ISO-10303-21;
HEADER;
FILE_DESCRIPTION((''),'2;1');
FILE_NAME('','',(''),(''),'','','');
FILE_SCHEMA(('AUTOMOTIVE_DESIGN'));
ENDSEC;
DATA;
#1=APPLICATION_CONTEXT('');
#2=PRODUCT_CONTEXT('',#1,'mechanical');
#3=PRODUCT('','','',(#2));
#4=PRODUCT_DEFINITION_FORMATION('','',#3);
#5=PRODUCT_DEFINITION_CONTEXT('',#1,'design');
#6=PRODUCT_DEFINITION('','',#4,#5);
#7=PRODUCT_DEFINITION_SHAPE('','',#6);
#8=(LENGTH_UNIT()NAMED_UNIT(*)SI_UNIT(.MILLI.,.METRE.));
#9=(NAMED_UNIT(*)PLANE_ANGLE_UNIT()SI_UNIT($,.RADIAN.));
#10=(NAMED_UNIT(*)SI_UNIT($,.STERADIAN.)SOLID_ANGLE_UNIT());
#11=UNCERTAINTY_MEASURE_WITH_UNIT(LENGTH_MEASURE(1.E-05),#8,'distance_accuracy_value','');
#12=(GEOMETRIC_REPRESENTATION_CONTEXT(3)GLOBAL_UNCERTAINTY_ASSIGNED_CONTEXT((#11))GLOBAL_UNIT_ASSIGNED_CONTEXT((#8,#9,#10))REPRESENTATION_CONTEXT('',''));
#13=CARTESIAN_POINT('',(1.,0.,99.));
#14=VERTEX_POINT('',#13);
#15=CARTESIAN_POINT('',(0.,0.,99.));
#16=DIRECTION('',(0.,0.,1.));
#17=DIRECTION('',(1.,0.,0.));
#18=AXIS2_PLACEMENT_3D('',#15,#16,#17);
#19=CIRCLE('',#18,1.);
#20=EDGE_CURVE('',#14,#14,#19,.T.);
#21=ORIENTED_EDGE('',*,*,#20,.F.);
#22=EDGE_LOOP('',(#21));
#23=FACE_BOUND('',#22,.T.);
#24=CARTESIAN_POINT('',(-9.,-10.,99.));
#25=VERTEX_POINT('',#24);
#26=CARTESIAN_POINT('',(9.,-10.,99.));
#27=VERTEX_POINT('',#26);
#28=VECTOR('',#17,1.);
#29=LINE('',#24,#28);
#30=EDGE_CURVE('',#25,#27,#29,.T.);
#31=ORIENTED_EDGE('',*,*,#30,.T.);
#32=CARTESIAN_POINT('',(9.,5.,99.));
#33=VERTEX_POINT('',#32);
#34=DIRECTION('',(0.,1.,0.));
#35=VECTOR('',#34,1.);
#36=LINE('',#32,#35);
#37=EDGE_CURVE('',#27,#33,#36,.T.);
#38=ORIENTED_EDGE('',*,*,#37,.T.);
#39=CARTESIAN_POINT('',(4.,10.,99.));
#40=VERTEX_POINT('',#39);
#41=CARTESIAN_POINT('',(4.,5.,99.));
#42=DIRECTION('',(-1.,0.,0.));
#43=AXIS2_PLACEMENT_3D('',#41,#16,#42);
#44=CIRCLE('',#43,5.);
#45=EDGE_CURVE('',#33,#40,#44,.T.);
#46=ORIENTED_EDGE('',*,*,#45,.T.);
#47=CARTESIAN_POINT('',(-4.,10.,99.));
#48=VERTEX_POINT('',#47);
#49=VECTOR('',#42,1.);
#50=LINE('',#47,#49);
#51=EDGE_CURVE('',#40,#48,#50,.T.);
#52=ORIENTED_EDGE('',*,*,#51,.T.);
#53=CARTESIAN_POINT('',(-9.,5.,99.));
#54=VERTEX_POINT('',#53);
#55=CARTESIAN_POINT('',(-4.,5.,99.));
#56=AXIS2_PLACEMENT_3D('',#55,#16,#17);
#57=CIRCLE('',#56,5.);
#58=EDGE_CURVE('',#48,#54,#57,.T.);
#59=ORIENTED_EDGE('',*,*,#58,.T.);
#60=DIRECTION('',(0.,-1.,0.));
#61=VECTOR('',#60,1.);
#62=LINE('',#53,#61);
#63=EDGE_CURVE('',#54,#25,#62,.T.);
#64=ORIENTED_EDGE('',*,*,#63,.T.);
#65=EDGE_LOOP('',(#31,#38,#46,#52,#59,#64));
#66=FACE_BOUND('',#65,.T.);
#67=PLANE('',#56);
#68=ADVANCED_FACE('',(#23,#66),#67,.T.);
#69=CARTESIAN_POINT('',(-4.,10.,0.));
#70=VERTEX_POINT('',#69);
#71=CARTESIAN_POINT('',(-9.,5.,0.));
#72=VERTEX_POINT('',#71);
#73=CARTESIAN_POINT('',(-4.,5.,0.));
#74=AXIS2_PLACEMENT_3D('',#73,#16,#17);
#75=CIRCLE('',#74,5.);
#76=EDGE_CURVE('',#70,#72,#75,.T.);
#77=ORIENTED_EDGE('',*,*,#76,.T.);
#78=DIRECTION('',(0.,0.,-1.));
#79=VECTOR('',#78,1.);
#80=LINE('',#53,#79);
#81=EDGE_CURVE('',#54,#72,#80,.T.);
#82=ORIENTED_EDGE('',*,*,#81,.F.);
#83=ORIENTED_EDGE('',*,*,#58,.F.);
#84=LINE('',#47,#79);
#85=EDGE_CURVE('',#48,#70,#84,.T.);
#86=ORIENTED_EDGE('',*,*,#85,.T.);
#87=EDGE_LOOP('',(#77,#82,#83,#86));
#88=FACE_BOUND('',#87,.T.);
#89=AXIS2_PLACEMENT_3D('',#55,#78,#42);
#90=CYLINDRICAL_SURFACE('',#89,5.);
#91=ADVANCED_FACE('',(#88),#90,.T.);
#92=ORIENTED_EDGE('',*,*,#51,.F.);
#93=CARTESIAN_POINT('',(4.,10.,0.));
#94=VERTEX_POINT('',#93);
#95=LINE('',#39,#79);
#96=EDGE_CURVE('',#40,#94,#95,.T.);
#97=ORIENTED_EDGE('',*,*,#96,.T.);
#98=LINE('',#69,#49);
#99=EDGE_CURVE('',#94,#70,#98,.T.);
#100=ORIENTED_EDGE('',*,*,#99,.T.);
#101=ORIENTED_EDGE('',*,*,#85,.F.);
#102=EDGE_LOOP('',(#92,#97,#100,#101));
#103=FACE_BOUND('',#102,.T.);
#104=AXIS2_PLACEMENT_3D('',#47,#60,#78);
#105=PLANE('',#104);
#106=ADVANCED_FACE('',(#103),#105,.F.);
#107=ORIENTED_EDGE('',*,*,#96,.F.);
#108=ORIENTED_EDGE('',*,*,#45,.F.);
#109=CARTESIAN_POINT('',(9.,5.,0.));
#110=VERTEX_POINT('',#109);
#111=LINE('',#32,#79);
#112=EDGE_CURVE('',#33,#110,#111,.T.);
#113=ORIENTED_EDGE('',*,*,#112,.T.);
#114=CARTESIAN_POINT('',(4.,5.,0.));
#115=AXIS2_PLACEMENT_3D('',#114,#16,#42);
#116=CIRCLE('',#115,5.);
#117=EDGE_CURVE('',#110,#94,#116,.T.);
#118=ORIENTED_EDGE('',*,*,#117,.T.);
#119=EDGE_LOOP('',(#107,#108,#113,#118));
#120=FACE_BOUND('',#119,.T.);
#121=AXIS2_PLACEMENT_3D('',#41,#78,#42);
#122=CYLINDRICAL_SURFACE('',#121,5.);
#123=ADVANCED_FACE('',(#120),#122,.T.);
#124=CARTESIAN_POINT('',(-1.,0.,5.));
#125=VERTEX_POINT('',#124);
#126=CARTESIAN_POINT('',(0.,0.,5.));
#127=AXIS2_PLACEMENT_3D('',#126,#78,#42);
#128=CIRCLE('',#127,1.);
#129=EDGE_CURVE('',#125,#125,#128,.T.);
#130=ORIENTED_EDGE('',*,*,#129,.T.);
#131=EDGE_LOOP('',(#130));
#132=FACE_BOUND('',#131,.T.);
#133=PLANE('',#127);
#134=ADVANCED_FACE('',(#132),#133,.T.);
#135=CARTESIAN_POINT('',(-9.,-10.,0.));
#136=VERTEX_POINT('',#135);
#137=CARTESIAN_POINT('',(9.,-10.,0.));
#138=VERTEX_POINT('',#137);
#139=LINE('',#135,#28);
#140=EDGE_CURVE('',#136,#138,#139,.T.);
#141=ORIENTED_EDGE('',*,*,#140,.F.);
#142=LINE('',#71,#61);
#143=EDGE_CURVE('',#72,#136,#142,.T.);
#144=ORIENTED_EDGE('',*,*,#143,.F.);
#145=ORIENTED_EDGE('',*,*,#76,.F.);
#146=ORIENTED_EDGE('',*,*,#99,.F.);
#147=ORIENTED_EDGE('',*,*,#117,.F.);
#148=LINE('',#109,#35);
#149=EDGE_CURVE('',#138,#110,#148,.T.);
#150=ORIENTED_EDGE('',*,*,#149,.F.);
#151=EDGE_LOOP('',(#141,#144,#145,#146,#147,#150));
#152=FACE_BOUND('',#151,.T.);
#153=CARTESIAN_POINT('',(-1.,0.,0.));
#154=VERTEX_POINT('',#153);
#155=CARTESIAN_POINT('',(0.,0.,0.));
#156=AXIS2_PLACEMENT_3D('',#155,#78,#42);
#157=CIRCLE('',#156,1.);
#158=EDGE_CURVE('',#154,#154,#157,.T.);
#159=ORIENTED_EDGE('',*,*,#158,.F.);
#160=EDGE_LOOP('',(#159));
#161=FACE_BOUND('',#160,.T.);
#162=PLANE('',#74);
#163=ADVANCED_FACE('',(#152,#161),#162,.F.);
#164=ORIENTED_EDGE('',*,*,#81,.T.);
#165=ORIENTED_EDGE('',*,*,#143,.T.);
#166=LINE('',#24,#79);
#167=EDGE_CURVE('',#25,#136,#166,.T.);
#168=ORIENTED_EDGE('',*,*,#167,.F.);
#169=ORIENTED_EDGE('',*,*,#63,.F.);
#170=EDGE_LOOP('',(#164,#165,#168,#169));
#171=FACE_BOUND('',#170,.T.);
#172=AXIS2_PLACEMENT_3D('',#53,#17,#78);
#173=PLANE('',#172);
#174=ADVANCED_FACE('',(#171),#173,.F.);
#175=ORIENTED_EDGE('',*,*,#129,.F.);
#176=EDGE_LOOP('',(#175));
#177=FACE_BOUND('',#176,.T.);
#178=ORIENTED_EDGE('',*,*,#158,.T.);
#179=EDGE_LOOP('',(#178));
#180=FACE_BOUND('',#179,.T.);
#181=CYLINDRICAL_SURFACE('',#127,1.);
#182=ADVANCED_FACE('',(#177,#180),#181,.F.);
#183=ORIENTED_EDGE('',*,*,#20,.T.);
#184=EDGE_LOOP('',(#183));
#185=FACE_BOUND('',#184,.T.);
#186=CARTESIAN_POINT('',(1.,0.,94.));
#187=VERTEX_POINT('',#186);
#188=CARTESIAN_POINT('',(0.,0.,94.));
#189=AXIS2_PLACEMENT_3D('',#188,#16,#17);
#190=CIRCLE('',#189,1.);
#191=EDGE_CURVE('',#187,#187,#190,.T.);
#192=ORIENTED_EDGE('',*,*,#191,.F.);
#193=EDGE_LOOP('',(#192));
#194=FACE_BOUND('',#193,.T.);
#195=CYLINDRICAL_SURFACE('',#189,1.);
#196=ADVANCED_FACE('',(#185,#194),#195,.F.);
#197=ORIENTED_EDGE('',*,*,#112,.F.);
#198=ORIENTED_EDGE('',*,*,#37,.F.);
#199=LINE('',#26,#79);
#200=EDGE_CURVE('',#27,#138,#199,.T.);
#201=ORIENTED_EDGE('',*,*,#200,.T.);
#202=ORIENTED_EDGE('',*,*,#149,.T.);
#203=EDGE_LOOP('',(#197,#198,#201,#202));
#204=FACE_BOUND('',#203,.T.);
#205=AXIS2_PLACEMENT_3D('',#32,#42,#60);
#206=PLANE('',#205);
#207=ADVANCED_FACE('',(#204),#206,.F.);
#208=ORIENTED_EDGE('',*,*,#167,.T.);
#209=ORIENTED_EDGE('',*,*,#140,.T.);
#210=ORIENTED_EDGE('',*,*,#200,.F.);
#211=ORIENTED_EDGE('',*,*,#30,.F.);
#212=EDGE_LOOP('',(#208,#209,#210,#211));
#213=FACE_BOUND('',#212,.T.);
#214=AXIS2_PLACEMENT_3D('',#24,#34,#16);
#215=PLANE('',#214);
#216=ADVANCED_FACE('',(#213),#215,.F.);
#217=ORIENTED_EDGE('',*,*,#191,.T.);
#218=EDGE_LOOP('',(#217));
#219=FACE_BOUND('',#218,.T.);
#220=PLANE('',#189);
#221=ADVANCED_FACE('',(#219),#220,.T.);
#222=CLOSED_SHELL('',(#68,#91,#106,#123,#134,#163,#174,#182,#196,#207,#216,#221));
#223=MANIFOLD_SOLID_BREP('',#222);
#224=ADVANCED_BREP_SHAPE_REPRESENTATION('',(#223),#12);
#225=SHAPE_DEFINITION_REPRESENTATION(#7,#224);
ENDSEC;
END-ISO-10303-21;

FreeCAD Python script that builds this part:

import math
import FreeCAD as App
import Part
import Sketcher

V = App.Vector

doc = App.newDocument("Part")
body = doc.addObject("PartDesign::Body", "Body")

# Sketch on XY plane
sketch1 = body.newObject("Sketcher::SketchObject", "Sketch")
sketch1.AttachmentSupport = (doc.getObject("XY_Plane"), [""])
sketch1.MapMode = "FlatFace"
sketch1.addGeometry([
    Part.LineSegment(V(4, 10, 0), V(-4, 10, 0)),  # 0
    Part.ArcOfCircle(Part.Circle(V(-4, 5, 0), V(0, 0, 1), 5), math.radians(90), math.radians(180)),  # 1
    Part.LineSegment(V(-9, 5, 0), V(-9, -10, 0)),  # 2
    Part.LineSegment(V(-9, -10, 0), V(9, -10, 0)),  # 3
    Part.LineSegment(V(9, -10, 0), V(9, 5, 0)),  # 4
    Part.ArcOfCircle(Part.Circle(V(4, 5, 0), V(0, 0, 1), 5), math.radians(0), math.radians(90)),  # 5
], False)
sketch1.addConstraint([
    Sketcher.Constraint("Tangent", 0, 2, 1, 1),
    Sketcher.Constraint("Tangent", 1, 2, 2, 1),
    Sketcher.Constraint("Coincident", 2, 2, 3, 1),
    Sketcher.Constraint("Coincident", 3, 2, 4, 1),
    Sketcher.Constraint("Tangent", 4, 2, 5, 1),
    Sketcher.Constraint("Tangent", 5, 2, 0, 1),
    Sketcher.Constraint("Horizontal", 0),
    Sketcher.Constraint("Vertical", 2),
    Sketcher.Constraint("Horizontal", 3),
    Sketcher.Constraint("Vertical", 4),
    Sketcher.Constraint("Equal", 1, 5),
    Sketcher.Constraint("Radius", 1, 5.0),
    Sketcher.Constraint("DistanceX", 0, 2, 0, 1, 8.0),
    Sketcher.Constraint("DistanceY", 2, 2, 2, 1, 15.0),
    Sketcher.Constraint("DistanceX", 1, 3, -1, 1, 4.0),
    Sketcher.Constraint("DistanceY", -1, 1, 1, 3, 5.0),
])
pad1 = body.newObject("PartDesign::Pad", "Pad")
pad1.Profile = sketch1
pad1.Length = 99

# Sketch on XY plane
sketch2 = body.newObject("Sketcher::SketchObject", "Sketch001")
sketch2.AttachmentSupport = (doc.getObject("XY_Plane"), [""])
sketch2.MapMode = "FlatFace"
sketch2.AttachmentOffset = App.Placement(V(0, 0, 99), App.Rotation())
sketch2.addGeometry(Part.Circle(V(0, 0, 0), V(0, 0, 1), 1), False)
sketch2.addConstraint([
    Sketcher.Constraint("Coincident", 0, 3, -1, 1),
    Sketcher.Constraint("Diameter", 0, 2.0),
])
pocket1 = body.newObject("PartDesign::Pocket", "Pocket")
pocket1.Profile = sketch2
pocket1.Length = 5

# Sketch on XY plane
sketch3 = body.newObject("Sketcher::SketchObject", "Sketch002")
sketch3.AttachmentSupport = (doc.getObject("XY_Plane"), [""])
sketch3.MapMode = "FlatFace"
sketch3.AttachmentOffset = App.Placement(V(0, 0, 5), App.Rotation())
sketch3.addGeometry(Part.Circle(V(0, 0, 0), V(0, 0, 1), 1), False)
sketch3.addConstraint([
    Sketcher.Constraint("Coincident", 0, 3, -1, 1),
    Sketcher.Constraint("Diameter", 0, 2.0),
])
pocket2 = body.newObject("PartDesign::Pocket", "Pocket001")
pocket2.Profile = sketch3
pocket2.Length = 5

doc.recompute()
